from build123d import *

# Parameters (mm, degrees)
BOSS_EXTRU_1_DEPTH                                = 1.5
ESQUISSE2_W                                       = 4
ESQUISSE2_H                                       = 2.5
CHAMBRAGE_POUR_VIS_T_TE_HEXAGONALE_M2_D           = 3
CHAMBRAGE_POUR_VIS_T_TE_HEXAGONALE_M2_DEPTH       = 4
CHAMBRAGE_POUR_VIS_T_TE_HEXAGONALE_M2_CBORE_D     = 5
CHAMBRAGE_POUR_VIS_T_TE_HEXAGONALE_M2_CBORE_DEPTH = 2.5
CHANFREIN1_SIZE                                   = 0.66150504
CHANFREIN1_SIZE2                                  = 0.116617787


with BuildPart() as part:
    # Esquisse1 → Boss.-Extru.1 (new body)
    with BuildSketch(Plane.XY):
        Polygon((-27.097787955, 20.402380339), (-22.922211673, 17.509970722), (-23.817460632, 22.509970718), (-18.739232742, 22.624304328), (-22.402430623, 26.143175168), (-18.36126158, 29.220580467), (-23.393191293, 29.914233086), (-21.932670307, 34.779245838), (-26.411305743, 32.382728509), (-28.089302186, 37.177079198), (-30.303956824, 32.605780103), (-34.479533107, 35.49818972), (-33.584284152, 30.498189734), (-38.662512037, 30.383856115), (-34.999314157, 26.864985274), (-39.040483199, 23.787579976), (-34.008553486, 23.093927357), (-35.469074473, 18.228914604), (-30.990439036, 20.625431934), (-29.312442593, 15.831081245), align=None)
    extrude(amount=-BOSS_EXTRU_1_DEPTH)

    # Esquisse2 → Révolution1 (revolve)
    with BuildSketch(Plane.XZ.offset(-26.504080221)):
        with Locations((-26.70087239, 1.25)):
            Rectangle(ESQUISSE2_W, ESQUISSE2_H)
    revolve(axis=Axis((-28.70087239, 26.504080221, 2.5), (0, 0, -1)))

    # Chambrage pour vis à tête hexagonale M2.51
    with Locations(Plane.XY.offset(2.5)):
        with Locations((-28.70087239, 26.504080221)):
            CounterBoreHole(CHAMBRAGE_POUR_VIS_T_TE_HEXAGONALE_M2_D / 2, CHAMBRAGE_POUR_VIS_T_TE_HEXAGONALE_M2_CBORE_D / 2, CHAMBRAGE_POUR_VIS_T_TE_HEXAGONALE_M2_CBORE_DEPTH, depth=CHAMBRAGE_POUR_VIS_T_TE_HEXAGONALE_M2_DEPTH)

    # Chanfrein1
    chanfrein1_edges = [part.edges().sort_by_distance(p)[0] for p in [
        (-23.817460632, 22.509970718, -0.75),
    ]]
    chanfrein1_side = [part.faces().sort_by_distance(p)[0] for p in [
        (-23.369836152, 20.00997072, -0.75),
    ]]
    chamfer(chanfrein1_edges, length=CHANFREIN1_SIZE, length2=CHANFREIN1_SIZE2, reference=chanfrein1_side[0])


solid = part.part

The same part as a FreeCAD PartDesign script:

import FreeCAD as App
import Part
import Sketcher

V = App.Vector


def edges_at(feature, points):
    """Names of the edges that pass closest to the given points."""
    edges = feature.Shape.Edges
    near = lambda p: min(range(len(edges)), key=lambda i: edges[i].distToShape(Part.Vertex(*p))[0])
    return sorted({f"Edge{near(p) + 1}" for p in points})


def add_polygon(sketch, points):
    """Adds a closed chain of lines whose ends are joined by coincident constraints."""
    first, n = sketch.GeometryCount, len(points)
    for a, b in zip(points, points[1:] + points[:1]):
        sketch.addGeometry(Part.LineSegment(App.Vector(*a, 0), App.Vector(*b, 0)), False)
    for i in range(n):
        sketch.addConstraint(Sketcher.Constraint("Coincident", first + i, 2, first + (i + 1) % n, 1))

doc = App.newDocument("Part")
params = doc.addObject("Spreadsheet::Sheet", "Params")
for row, (alias, value) in enumerate([
    ("pad1_length", "1.5 mm"),
    ("sketch2_width", "4 mm"),
    ("sketch2_height", "2.5 mm"),
    ("revolution_angle", "360 deg"),
    ("sketch3_diameter", "3 mm"),
    ("hole_diameter", "3 mm"),
    ("hole_depth", "4 mm"),
    ("hole_cbore_diameter", "5 mm"),
    ("hole_cbore_depth", "2.5 mm"),
    ("chamfer_size", "0.661505 mm"),
    ("chamfer_size2", "0.116618 mm"),
], start=1):
    params.set(f"A{row}", alias)
    params.set(f"B{row}", "=" + value)
    params.setAlias(f"B{row}", alias)

body = doc.addObject("PartDesign::Body", "Body")

sketch1 = body.newObject("Sketcher::SketchObject", "Sketch")
sketch1.AttachmentSupport = (doc.getObject("XY_Plane"), [""])
sketch1.MapMode = "FlatFace"
add_polygon(sketch1, [(-27.097788, 20.40238), (-22.922212, 17.509971), (-23.817461, 22.509971), (-18.739233, 22.624304), (-22.402431, 26.143175), (-18.361262, 29.22058), (-23.393191, 29.914233), (-21.93267, 34.779246), (-26.411306, 32.382729), (-28.089302, 37.177079), (-30.303957, 32.60578), (-34.479533, 35.49819), (-33.584284, 30.49819), (-38.662512, 30.383856), (-34.999314, 26.864985), (-39.040483, 23.78758), (-34.008553, 23.093927), (-35.469074, 18.228915), (-30.990439, 20.625432), (-29.312443, 15.831081)])
sketch1.addConstraint([
    Sketcher.Constraint("Parallel", 0, 10),
    Sketcher.Constraint("Parallel", 1, 11),
    Sketcher.Constraint("Parallel", 2, 12),
    Sketcher.Constraint("Parallel", 3, 13),
    Sketcher.Constraint("Parallel", 4, 14),
    Sketcher.Constraint("Parallel", 5, 15),
    Sketcher.Constraint("Parallel", 6, 16),
    Sketcher.Constraint("Parallel", 7, 17),
    Sketcher.Constraint("Parallel", 8, 18),
    Sketcher.Constraint("Parallel", 9, 19),
    Sketcher.Constraint("Equal", 0, 1),
    Sketcher.Constraint("Equal", 1, 2),
    Sketcher.Constraint("Equal", 2, 3),
    Sketcher.Constraint("Equal", 3, 4),
    Sketcher.Constraint("Equal", 4, 5),
    Sketcher.Constraint("Equal", 5, 6),
    Sketcher.Constraint("Equal", 6, 7),
    Sketcher.Constraint("Equal", 7, 8),
    Sketcher.Constraint("Equal", 8, 9),
    Sketcher.Constraint("Equal", 9, 10),
    Sketcher.Constraint("Equal", 10, 11),
    Sketcher.Constraint("Equal", 11, 12),
    Sketcher.Constraint("Equal", 12, 13),
    Sketcher.Constraint("Equal", 13, 14),
    Sketcher.Constraint("Equal", 14, 15),
    Sketcher.Constraint("Equal", 15, 16),
    Sketcher.Constraint("Equal", 16, 17),
    Sketcher.Constraint("DistanceY", 0, 2, 1, 2, 5.0),
    Sketcher.Constraint("DistanceX", 1, 2, 4, 2, 5.456199),
    Sketcher.Constraint("DistanceY", 4, 2, 8, 2, 7.956499),
    Sketcher.Constraint("DistanceY", 9, 2, 8, 2, 4.571299),
    Sketcher.Constraint("DistanceY", 14, 2, 9, 2, 8.8182),
    Sketcher.Constraint("DistanceX", 0, 2, -1, 1, 22.922212),
    Sketcher.Constraint("DistanceY", -1, 1, 0, 2, 17.509971),
    Sketcher.Constraint("DistanceX", 1, 2, -1, 1, 23.817461),
    Sketcher.Constraint("DistanceX", 3, 2, -1, 1, 22.402431),
    Sketcher.Constraint("DistanceY", -1, 1, 4, 2, 29.22058),
    Sketcher.Constraint("DistanceX", 5, 2, -1, 1, 23.393191),
    Sketcher.Constraint("DistanceX", 6, 2, -1, 1, 21.93267),
    Sketcher.Constraint("DistanceY", -1, 1, 7, 2, 32.382729),
])
pad1 = body.newObject("PartDesign::Pad", "Pad")
pad1.Profile = sketch1
pad1.setExpression("Length", "Params.pad1_length")
pad1.Reversed = True

sketch2 = body.newObject("Sketcher::SketchObject", "Sketch001")
sketch2.AttachmentSupport = (doc.getObject("XZ_Plane"), [""])
sketch2.MapMode = "FlatFace"
sketch2.AttachmentOffset = App.Placement(V(0, 0, -26.50408), App.Rotation())
add_polygon(sketch2, [(-28.700872, 2.5), (-28.700872, 0), (-24.700872, 0), (-24.700872, 2.5)])
sketch2.addGeometry(Part.LineSegment(V(-28.700872, 2.5, 0), V(-28.700872, 0, 0)), True)
sketch2.addConstraint([
    Sketcher.Constraint("Vertical", 0),
    Sketcher.Constraint("Horizontal", 1),
    Sketcher.Constraint("Vertical", 2),
    Sketcher.Constraint("Horizontal", 3),
    Sketcher.Constraint("Vertical", 4),
    Sketcher.Constraint("Coincident", 4, 1, 3, 2),
    Sketcher.Constraint("PointOnObject", 0, 2, -1),
    Sketcher.Constraint("PointOnObject", 4, 2, -1),
    Sketcher.Constraint("DistanceX", 1, 1, 1, 2, 4.0),
    Sketcher.Constraint("DistanceY", 0, 2, 0, 1, 2.5),
    Sketcher.Constraint("DistanceX", 0, 2, -1, 1, 28.700872),
])
sketch2.setExpression("Constraints[12]", "Params.sketch2_width")
sketch2.setExpression("Constraints[13]", "Params.sketch2_height")
revolution = body.newObject("PartDesign::Revolution", "Revolution")
revolution.Profile = sketch2
revolution.ReferenceAxis = (sketch2, ["Axis0"])
revolution.setExpression("Angle", "Params.revolution_angle")

sketch3 = body.newObject("Sketcher::SketchObject", "Sketch002")
sketch3.AttachmentSupport = (doc.getObject("XY_Plane"), [""])
sketch3.MapMode = "FlatFace"
sketch3.AttachmentOffset = App.Placement(V(0, 0, 2.5), App.Rotation())
sketch3.addGeometry(Part.Circle(V(-28.700872, 26.50408, 0), V(0, 0, 1), 1.5), False)
sketch3.addConstraint([
    Sketcher.Constraint("Diameter", 0, 3.0),
    Sketcher.Constraint("DistanceY", -1, 1, 0, 3, 26.50408),
    Sketcher.Constraint("DistanceX", 0, 3, -1, 1, 28.700872),
])
sketch3.setExpression("Constraints[0]", "Params.sketch3_diameter")
doc.recompute()
hole = body.newObject("PartDesign::Hole", "Hole")
hole.Profile = sketch3
hole.ThreadType = "None"
hole.setExpression("Diameter", "Params.hole_diameter")
hole.DepthType = "Dimension"
hole.setExpression("Depth", "Params.hole_depth")
hole.DrillPoint = "Flat"
hole.HoleCutType = "Counterbore"
hole.setExpression("HoleCutDiameter", "Params.hole_cbore_diameter")
hole.setExpression("HoleCutDepth", "Params.hole_cbore_depth")
doc.recompute()

chamfer = body.newObject("PartDesign::Chamfer", "Chamfer")
chamfer.Base = (hole, edges_at(hole, [(-23.817, 22.51, -0.75)]))
chamfer.ChamferType = "Two distances"
chamfer.setExpression("Size", "Params.chamfer_size")
chamfer.setExpression("Size2", "Params.chamfer_size2")

doc.recompute()
